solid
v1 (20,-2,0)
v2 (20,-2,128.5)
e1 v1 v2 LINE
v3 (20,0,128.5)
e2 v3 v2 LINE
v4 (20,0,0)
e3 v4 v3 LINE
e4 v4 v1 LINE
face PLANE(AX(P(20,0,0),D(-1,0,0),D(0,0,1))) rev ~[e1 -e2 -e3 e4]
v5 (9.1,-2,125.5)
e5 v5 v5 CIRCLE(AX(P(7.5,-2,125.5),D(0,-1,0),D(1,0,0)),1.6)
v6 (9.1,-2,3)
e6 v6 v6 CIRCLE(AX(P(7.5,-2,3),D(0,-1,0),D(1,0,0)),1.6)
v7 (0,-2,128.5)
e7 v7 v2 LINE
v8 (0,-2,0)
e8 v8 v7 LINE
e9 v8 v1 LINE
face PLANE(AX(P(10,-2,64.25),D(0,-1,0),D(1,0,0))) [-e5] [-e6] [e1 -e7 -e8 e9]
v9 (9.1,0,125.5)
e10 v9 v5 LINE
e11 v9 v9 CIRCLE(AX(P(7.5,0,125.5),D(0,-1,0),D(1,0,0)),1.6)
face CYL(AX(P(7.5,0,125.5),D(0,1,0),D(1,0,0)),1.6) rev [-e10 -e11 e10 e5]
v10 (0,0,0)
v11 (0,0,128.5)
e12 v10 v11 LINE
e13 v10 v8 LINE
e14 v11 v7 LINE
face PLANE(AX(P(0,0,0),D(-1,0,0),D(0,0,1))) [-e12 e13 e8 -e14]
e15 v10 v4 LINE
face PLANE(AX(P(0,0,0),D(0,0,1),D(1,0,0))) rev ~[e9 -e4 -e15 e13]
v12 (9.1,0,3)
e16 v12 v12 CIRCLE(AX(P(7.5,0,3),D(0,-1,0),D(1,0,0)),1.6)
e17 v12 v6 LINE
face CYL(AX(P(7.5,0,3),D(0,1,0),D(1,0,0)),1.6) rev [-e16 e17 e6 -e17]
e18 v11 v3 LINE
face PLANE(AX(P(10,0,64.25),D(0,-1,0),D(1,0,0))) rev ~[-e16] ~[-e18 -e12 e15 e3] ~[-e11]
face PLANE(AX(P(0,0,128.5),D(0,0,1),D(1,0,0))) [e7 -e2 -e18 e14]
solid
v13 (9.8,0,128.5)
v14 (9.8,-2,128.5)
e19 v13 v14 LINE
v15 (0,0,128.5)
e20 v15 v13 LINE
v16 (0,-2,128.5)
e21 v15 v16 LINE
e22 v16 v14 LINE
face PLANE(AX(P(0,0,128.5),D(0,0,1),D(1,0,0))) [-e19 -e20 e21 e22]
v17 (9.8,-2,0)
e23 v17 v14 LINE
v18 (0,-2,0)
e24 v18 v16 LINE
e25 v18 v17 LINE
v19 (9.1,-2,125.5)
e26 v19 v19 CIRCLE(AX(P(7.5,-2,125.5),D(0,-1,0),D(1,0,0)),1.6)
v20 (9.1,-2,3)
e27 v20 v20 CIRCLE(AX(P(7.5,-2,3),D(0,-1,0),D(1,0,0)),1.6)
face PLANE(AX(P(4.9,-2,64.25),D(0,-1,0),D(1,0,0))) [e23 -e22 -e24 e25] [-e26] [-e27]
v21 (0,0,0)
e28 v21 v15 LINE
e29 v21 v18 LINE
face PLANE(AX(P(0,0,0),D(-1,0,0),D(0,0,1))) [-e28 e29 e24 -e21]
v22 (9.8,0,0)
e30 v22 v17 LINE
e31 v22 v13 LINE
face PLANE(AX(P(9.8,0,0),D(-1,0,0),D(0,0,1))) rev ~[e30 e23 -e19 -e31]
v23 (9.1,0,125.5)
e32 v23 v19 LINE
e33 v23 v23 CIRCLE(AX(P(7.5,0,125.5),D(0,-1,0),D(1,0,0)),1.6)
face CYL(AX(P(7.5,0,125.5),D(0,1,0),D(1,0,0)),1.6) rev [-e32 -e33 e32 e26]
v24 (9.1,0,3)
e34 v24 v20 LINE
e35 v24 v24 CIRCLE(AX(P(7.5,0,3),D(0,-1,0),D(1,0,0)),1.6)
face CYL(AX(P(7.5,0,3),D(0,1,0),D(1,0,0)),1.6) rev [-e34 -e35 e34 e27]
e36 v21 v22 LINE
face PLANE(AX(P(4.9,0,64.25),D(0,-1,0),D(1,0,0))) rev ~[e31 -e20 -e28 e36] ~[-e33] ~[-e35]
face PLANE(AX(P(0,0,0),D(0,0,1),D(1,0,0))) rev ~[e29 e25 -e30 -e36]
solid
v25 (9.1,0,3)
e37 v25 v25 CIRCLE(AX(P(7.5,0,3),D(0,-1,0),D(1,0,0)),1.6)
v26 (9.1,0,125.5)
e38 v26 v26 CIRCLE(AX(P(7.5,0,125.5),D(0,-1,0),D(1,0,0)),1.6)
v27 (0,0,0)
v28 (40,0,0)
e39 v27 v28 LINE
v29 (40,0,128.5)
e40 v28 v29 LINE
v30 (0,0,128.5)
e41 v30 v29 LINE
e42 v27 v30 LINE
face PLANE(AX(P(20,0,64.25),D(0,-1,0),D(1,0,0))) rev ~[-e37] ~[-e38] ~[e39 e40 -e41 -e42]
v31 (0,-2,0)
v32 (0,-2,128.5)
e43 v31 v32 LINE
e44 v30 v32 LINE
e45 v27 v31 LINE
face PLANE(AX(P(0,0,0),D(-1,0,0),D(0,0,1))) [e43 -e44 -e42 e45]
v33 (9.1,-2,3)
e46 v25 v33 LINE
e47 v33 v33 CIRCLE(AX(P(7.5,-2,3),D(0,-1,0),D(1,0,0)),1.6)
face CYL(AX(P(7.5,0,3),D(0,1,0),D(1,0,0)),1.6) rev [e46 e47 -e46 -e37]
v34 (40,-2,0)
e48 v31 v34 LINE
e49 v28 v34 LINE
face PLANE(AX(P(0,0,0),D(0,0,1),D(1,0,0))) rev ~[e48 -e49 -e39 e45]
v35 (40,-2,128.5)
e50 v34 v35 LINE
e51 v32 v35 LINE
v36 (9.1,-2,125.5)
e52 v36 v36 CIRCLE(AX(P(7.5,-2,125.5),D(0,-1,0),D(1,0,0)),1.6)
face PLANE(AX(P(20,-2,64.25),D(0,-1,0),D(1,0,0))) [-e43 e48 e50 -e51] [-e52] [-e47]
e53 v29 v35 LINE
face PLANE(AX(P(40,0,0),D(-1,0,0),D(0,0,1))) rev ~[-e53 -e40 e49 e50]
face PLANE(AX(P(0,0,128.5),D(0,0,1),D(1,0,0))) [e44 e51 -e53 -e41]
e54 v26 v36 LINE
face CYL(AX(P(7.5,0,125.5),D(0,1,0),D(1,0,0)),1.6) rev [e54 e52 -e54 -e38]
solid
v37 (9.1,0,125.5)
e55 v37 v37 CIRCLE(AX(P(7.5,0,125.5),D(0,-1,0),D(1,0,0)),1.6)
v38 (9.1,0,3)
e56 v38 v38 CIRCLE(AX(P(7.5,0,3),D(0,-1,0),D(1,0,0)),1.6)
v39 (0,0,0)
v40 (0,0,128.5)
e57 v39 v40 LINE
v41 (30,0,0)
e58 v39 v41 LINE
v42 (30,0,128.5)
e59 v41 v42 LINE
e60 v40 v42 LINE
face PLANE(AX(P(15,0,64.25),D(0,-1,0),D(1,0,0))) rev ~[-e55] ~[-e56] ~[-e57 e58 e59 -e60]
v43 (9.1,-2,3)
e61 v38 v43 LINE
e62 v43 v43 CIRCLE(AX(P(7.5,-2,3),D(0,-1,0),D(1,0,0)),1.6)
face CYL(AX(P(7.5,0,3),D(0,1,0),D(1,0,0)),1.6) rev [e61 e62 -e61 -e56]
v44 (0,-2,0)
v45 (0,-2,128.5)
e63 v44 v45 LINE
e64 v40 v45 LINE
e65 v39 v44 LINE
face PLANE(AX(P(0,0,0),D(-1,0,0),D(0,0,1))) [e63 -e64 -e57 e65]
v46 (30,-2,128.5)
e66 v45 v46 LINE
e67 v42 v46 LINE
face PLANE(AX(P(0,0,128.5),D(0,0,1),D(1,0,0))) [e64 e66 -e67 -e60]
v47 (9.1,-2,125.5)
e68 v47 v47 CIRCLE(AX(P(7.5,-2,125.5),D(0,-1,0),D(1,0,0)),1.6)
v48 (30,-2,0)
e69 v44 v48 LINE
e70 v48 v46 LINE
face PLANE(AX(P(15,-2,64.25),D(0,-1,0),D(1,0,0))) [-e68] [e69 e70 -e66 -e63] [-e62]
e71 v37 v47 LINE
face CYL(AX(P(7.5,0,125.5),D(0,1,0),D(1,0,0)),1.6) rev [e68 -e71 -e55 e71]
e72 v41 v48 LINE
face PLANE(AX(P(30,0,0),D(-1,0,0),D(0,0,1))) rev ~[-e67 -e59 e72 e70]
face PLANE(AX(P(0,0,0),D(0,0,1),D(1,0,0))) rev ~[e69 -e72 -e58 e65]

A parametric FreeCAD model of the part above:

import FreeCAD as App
import Part
import Sketcher

V = App.Vector
Q = App.Units.Quantity


def add_polygon(sketch, points):
    """Adds a closed chain of lines whose ends are joined by coincident constraints."""
    first, n = sketch.GeometryCount, len(points)
    for a, b in zip(points, points[1:] + points[:1]):
        sketch.addGeometry(Part.LineSegment(App.Vector(*a, 0), App.Vector(*b, 0)), False)
    for i in range(n):
        sketch.addConstraint(Sketcher.Constraint("Coincident", first + i, 2, first + (i + 1) % n, 1))

doc = App.newDocument("Part")
body = doc.addObject("PartDesign::Body", "Body")

# Sketch on XZ plane
sketch1 = doc.addObject("Sketcher::SketchObject", "Sketch")
body.addObject(sketch1)
sketch1.AttachmentSupport = (doc.XZ_Plane, [""])
sketch1.MapMode = "FlatFace"
add_polygon(sketch1, [(0, 128.5), (0, 0), (40, 0), (40, 128.5)])  # lines 0-3
sketch1.addGeometry(Part.Circle(V(7.5, 3, 0), V(0, 0, 1), 1.6), False)  # 4
sketch1.addGeometry(Part.Circle(V(7.5, 125.5, 0), V(0, 0, 1), 1.6), False)  # 5
sketch1.addConstraint([
    Sketcher.Constraint("Vertical", 0),
    Sketcher.Constraint("Horizontal", 1),
    Sketcher.Constraint("Vertical", 2),
    Sketcher.Constraint("Horizontal", 3),
    Sketcher.Constraint("Coincident", 0, 2, -1, 1),
    Sketcher.Constraint("Equal", 4, 5),
    Sketcher.Constraint("Vertical", 4, 3, 5, 3),
    Sketcher.Constraint("Diameter", 4, Q("3.2 mm")),
    Sketcher.Constraint("DistanceX", 1, 1, 1, 2, Q("40 mm")),
    Sketcher.Constraint("DistanceY", 0, 2, 0, 1, Q("128.5 mm")),
    Sketcher.Constraint("DistanceY", -1, 1, 4, 3, Q("3 mm")),
    Sketcher.Constraint("DistanceY", 5, 3, 2, 2, Q("3 mm")),
    Sketcher.Constraint("DistanceX", -1, 1, 4, 3, Q("7.5 mm")),
])
pad1 = doc.addObject("PartDesign::Pad", "Pad")
body.addObject(pad1)
pad1.Profile = sketch1
pad1.Length = 2
body2 = doc.addObject("PartDesign::Body", "Body001")

# Sketch on XZ plane
sketch2 = doc.addObject("Sketcher::SketchObject", "Sketch001")
body2.addObject(sketch2)
sketch2.AttachmentSupport = (doc.getObject("XZ_Plane001"), [""])
sketch2.MapMode = "FlatFace"
add_polygon(sketch2, [(0, 128.5), (0, 0), (20, 0), (20, 128.5)])  # lines 0-3
sketch2.addGeometry(Part.Circle(V(7.5, 3, 0), V(0, 0, 1), 1.6), False)  # 4
sketch2.addGeometry(Part.Circle(V(7.5, 125.5, 0), V(0, 0, 1), 1.6), False)  # 5
sketch2.addConstraint([
    Sketcher.Constraint("Vertical", 0),
    Sketcher.Constraint("Horizontal", 1),
    Sketcher.Constraint("Vertical", 2),
    Sketcher.Constraint("Horizontal", 3),
    Sketcher.Constraint("Coincident", 0, 2, -1, 1),
    Sketcher.Constraint("Equal", 4, 5),
    Sketcher.Constraint("Vertical", 4, 3, 5, 3),
    Sketcher.Constraint("Diameter", 4, Q("3.2 mm")),
    Sketcher.Constraint("DistanceX", 1, 1, 1, 2, Q("20 mm")),
    Sketcher.Constraint("DistanceY", 0, 2, 0, 1, Q("128.5 mm")),
    Sketcher.Constraint("DistanceY", -1, 1, 4, 3, Q("3 mm")),
    Sketcher.Constraint("DistanceY", 5, 3, 2, 2, Q("3 mm")),
    Sketcher.Constraint("DistanceX", -1, 1, 4, 3, Q("7.5 mm")),
])
pad2 = doc.addObject("PartDesign::Pad", "Pad001")
body2.addObject(pad2)
pad2.Profile = sketch2
pad2.Length = 2
body3 = doc.addObject("PartDesign::Body", "Body002")

# Sketch on XZ plane
sketch3 = doc.addObject("Sketcher::SketchObject", "Sketch002")
body3.addObject(sketch3)
sketch3.AttachmentSupport = (doc.getObject("XZ_Plane002"), [""])
sketch3.MapMode = "FlatFace"
add_polygon(sketch3, [(0, 128.5), (0, 0), (30, 0), (30, 128.5)])  # lines 0-3
sketch3.addGeometry(Part.Circle(V(7.5, 3, 0), V(0, 0, 1), 1.6), False)  # 4
sketch3.addGeometry(Part.Circle(V(7.5, 125.5, 0), V(0, 0, 1), 1.6), False)  # 5
sketch3.addConstraint([
    Sketcher.Constraint("Vertical", 0),
    Sketcher.Constraint("Horizontal", 1),
    Sketcher.Constraint("Vertical", 2),
    Sketcher.Constraint("Horizontal", 3),
    Sketcher.Constraint("Coincident", 0, 2, -1, 1),
    Sketcher.Constraint("Equal", 4, 5),
    Sketcher.Constraint("Vertical", 4, 3, 5, 3),
    Sketcher.Constraint("Diameter", 4, Q("3.2 mm")),
    Sketcher.Constraint("DistanceX", 1, 1, 1, 2, Q("30 mm")),
    Sketcher.Constraint("DistanceY", 0, 2, 0, 1, Q("128.5 mm")),
    Sketcher.Constraint("DistanceY", -1, 1, 4, 3, Q("3 mm")),
    Sketcher.Constraint("DistanceY", 5, 3, 2, 2, Q("3 mm")),
    Sketcher.Constraint("DistanceX", -1, 1, 4, 3, Q("7.5 mm")),
])
pad3 = doc.addObject("PartDesign::Pad", "Pad002")
body3.addObject(pad3)
pad3.Profile = sketch3
pad3.Length = 2
body4 = doc.addObject("PartDesign::Body", "Body003")

# Sketch on XZ plane
sketch4 = doc.addObject("Sketcher::SketchObject", "Sketch003")
body4.addObject(sketch4)
sketch4.AttachmentSupport = (doc.getObject("XZ_Plane003"), [""])
sketch4.MapMode = "FlatFace"
add_polygon(sketch4, [(0, 128.5), (0, 0), (9.8, 0), (9.8, 128.5)])  # lines 0-3
sketch4.addGeometry(Part.Circle(V(7.5, 3, 0), V(0, 0, 1), 1.6), False)  # 4
sketch4.addGeometry(Part.Circle(V(7.5, 125.5, 0), V(0, 0, 1), 1.6), False)  # 5
sketch4.addConstraint([
    Sketcher.Constraint("Vertical", 0),
    Sketcher.Constraint("Horizontal", 1),
    Sketcher.Constraint("Vertical", 2),
    Sketcher.Constraint("Horizontal", 3),
    Sketcher.Constraint("Coincident", 0, 2, -1, 1),
    Sketcher.Constraint("Equal", 4, 5),
    Sketcher.Constraint("Vertical", 4, 3, 5, 3),
    Sketcher.Constraint("Diameter", 4, Q("3.2 mm")),
    Sketcher.Constraint("DistanceX", 1, 1, 1, 2, Q("9.8 mm")),
    Sketcher.Constraint("DistanceY", 0, 2, 0, 1, Q("128.5 mm")),
    Sketcher.Constraint("DistanceY", -1, 1, 4, 3, Q("3 mm")),
    Sketcher.Constraint("DistanceY", 5, 3, 2, 2, Q("3 mm")),
    Sketcher.Constraint("DistanceX", -1, 1, 4, 3, Q("7.5 mm")),
])
pad4 = doc.addObject("PartDesign::Pad", "Pad003")
body4.addObject(pad4)
pad4.Profile = sketch4
pad4.Length = 2

doc.recompute()
